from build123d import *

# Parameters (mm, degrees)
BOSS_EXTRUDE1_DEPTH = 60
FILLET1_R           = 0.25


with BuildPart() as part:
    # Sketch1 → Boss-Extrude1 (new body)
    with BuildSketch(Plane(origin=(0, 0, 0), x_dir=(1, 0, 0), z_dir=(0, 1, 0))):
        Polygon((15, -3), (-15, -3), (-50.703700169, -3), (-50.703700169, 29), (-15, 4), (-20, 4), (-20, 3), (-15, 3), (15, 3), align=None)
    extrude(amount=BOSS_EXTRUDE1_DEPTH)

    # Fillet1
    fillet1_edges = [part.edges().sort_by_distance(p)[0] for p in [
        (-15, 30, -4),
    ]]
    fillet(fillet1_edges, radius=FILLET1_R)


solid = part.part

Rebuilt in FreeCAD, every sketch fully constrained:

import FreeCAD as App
import Part
import Sketcher

V = App.Vector
Q = App.Units.Quantity


def edges_at(feature, points):
    """Names of the edges that pass closest to the given points."""
    edges = feature.Shape.Edges
    near = lambda p: min(range(len(edges)), key=lambda i: edges[i].distToShape(Part.Vertex(*p))[0])
    return sorted({f"Edge{near(p) + 1}" for p in points})


def add_polygon(sketch, points):
    """Adds a closed chain of lines whose ends are joined by coincident constraints."""
    first, n = sketch.GeometryCount, len(points)
    for a, b in zip(points, points[1:] + points[:1]):
        sketch.addGeometry(Part.LineSegment(App.Vector(*a, 0), App.Vector(*b, 0)), False)
    for i in range(n):
        sketch.addConstraint(Sketcher.Constraint("Coincident", first + i, 2, first + (i + 1) % n, 1))

doc = App.newDocument("Part")
params = doc.addObject("Spreadsheet::Sheet", "Params")
for row, (alias, value) in enumerate([
    ("sketch1_width", "35 mm"),
    ("sketch1_width2", "5 mm"),
    ("sketch1_height", "6 mm"),
    ("sketch1_height2", "1 mm"),
    ("sketch1_height3", "32 mm"),
    ("pad1_length", "60 mm"),
    ("fillet_radius", "0.25 mm"),
], start=1):
    params.set(f"A{row}", alias)
    params.set(f"B{row}", "=" + value)
    params.setAlias(f"B{row}", alias)

body = doc.addObject("PartDesign::Body", "Body")

sketch1 = body.newObject("Sketcher::SketchObject", "Sketch")
sketch1.AttachmentSupport = (doc.getObject("XZ_Plane"), [""])
sketch1.MapMode = "FlatFace"
add_polygon(sketch1, [(-50.7, 3), (15, 3), (15, -3), (-20, -3), (-20, -4), (-15, -4), (-50.7, -29)])
sketch1.addConstraint([
    Sketcher.Constraint("Horizontal", 0),
    Sketcher.Constraint("Vertical", 1),
    Sketcher.Constraint("Horizontal", 2),
    Sketcher.Constraint("Vertical", 3),
    Sketcher.Constraint("Horizontal", 4),
    Sketcher.Constraint("Vertical", 6),
    Sketcher.Constraint("DistanceX", 2, 2, 2, 1, 35.0),
    Sketcher.Constraint("DistanceX", 4, 1, 4, 2, 5.0),
    Sketcher.Constraint("DistanceY", 1, 2, 1, 1, 6.0),
    Sketcher.Constraint("DistanceY", 3, 2, 3, 1, 1.0),
    Sketcher.Constraint("DistanceY", 6, 1, 6, 2, 32.0),
    Sketcher.Constraint("Angle", 5, Q("-145 deg")),
    Sketcher.Constraint("DistanceX", -1, 1, 0, 2, 15.0),
    Sketcher.Constraint("DistanceY", -1, 1, 0, 2, 3.0),
])
sketch1.setExpression("Constraints[13]", "Params.sketch1_width")
sketch1.setExpression("Constraints[14]", "Params.sketch1_width2")
sketch1.setExpression("Constraints[15]", "Params.sketch1_height")
sketch1.setExpression("Constraints[16]", "Params.sketch1_height2")
sketch1.setExpression("Constraints[17]", "Params.sketch1_height3")
pad1 = body.newObject("PartDesign::Pad", "Pad")
pad1.Profile = sketch1
pad1.setExpression("Length", "Params.pad1_length")
pad1.Reversed = True
doc.recompute()

fillet = body.newObject("PartDesign::Fillet", "Fillet")
fillet.Base = (pad1, edges_at(pad1, [(-15, 30, -4)]))
fillet.setExpression("Radius", "Params.fillet_radius")

doc.recompute()
